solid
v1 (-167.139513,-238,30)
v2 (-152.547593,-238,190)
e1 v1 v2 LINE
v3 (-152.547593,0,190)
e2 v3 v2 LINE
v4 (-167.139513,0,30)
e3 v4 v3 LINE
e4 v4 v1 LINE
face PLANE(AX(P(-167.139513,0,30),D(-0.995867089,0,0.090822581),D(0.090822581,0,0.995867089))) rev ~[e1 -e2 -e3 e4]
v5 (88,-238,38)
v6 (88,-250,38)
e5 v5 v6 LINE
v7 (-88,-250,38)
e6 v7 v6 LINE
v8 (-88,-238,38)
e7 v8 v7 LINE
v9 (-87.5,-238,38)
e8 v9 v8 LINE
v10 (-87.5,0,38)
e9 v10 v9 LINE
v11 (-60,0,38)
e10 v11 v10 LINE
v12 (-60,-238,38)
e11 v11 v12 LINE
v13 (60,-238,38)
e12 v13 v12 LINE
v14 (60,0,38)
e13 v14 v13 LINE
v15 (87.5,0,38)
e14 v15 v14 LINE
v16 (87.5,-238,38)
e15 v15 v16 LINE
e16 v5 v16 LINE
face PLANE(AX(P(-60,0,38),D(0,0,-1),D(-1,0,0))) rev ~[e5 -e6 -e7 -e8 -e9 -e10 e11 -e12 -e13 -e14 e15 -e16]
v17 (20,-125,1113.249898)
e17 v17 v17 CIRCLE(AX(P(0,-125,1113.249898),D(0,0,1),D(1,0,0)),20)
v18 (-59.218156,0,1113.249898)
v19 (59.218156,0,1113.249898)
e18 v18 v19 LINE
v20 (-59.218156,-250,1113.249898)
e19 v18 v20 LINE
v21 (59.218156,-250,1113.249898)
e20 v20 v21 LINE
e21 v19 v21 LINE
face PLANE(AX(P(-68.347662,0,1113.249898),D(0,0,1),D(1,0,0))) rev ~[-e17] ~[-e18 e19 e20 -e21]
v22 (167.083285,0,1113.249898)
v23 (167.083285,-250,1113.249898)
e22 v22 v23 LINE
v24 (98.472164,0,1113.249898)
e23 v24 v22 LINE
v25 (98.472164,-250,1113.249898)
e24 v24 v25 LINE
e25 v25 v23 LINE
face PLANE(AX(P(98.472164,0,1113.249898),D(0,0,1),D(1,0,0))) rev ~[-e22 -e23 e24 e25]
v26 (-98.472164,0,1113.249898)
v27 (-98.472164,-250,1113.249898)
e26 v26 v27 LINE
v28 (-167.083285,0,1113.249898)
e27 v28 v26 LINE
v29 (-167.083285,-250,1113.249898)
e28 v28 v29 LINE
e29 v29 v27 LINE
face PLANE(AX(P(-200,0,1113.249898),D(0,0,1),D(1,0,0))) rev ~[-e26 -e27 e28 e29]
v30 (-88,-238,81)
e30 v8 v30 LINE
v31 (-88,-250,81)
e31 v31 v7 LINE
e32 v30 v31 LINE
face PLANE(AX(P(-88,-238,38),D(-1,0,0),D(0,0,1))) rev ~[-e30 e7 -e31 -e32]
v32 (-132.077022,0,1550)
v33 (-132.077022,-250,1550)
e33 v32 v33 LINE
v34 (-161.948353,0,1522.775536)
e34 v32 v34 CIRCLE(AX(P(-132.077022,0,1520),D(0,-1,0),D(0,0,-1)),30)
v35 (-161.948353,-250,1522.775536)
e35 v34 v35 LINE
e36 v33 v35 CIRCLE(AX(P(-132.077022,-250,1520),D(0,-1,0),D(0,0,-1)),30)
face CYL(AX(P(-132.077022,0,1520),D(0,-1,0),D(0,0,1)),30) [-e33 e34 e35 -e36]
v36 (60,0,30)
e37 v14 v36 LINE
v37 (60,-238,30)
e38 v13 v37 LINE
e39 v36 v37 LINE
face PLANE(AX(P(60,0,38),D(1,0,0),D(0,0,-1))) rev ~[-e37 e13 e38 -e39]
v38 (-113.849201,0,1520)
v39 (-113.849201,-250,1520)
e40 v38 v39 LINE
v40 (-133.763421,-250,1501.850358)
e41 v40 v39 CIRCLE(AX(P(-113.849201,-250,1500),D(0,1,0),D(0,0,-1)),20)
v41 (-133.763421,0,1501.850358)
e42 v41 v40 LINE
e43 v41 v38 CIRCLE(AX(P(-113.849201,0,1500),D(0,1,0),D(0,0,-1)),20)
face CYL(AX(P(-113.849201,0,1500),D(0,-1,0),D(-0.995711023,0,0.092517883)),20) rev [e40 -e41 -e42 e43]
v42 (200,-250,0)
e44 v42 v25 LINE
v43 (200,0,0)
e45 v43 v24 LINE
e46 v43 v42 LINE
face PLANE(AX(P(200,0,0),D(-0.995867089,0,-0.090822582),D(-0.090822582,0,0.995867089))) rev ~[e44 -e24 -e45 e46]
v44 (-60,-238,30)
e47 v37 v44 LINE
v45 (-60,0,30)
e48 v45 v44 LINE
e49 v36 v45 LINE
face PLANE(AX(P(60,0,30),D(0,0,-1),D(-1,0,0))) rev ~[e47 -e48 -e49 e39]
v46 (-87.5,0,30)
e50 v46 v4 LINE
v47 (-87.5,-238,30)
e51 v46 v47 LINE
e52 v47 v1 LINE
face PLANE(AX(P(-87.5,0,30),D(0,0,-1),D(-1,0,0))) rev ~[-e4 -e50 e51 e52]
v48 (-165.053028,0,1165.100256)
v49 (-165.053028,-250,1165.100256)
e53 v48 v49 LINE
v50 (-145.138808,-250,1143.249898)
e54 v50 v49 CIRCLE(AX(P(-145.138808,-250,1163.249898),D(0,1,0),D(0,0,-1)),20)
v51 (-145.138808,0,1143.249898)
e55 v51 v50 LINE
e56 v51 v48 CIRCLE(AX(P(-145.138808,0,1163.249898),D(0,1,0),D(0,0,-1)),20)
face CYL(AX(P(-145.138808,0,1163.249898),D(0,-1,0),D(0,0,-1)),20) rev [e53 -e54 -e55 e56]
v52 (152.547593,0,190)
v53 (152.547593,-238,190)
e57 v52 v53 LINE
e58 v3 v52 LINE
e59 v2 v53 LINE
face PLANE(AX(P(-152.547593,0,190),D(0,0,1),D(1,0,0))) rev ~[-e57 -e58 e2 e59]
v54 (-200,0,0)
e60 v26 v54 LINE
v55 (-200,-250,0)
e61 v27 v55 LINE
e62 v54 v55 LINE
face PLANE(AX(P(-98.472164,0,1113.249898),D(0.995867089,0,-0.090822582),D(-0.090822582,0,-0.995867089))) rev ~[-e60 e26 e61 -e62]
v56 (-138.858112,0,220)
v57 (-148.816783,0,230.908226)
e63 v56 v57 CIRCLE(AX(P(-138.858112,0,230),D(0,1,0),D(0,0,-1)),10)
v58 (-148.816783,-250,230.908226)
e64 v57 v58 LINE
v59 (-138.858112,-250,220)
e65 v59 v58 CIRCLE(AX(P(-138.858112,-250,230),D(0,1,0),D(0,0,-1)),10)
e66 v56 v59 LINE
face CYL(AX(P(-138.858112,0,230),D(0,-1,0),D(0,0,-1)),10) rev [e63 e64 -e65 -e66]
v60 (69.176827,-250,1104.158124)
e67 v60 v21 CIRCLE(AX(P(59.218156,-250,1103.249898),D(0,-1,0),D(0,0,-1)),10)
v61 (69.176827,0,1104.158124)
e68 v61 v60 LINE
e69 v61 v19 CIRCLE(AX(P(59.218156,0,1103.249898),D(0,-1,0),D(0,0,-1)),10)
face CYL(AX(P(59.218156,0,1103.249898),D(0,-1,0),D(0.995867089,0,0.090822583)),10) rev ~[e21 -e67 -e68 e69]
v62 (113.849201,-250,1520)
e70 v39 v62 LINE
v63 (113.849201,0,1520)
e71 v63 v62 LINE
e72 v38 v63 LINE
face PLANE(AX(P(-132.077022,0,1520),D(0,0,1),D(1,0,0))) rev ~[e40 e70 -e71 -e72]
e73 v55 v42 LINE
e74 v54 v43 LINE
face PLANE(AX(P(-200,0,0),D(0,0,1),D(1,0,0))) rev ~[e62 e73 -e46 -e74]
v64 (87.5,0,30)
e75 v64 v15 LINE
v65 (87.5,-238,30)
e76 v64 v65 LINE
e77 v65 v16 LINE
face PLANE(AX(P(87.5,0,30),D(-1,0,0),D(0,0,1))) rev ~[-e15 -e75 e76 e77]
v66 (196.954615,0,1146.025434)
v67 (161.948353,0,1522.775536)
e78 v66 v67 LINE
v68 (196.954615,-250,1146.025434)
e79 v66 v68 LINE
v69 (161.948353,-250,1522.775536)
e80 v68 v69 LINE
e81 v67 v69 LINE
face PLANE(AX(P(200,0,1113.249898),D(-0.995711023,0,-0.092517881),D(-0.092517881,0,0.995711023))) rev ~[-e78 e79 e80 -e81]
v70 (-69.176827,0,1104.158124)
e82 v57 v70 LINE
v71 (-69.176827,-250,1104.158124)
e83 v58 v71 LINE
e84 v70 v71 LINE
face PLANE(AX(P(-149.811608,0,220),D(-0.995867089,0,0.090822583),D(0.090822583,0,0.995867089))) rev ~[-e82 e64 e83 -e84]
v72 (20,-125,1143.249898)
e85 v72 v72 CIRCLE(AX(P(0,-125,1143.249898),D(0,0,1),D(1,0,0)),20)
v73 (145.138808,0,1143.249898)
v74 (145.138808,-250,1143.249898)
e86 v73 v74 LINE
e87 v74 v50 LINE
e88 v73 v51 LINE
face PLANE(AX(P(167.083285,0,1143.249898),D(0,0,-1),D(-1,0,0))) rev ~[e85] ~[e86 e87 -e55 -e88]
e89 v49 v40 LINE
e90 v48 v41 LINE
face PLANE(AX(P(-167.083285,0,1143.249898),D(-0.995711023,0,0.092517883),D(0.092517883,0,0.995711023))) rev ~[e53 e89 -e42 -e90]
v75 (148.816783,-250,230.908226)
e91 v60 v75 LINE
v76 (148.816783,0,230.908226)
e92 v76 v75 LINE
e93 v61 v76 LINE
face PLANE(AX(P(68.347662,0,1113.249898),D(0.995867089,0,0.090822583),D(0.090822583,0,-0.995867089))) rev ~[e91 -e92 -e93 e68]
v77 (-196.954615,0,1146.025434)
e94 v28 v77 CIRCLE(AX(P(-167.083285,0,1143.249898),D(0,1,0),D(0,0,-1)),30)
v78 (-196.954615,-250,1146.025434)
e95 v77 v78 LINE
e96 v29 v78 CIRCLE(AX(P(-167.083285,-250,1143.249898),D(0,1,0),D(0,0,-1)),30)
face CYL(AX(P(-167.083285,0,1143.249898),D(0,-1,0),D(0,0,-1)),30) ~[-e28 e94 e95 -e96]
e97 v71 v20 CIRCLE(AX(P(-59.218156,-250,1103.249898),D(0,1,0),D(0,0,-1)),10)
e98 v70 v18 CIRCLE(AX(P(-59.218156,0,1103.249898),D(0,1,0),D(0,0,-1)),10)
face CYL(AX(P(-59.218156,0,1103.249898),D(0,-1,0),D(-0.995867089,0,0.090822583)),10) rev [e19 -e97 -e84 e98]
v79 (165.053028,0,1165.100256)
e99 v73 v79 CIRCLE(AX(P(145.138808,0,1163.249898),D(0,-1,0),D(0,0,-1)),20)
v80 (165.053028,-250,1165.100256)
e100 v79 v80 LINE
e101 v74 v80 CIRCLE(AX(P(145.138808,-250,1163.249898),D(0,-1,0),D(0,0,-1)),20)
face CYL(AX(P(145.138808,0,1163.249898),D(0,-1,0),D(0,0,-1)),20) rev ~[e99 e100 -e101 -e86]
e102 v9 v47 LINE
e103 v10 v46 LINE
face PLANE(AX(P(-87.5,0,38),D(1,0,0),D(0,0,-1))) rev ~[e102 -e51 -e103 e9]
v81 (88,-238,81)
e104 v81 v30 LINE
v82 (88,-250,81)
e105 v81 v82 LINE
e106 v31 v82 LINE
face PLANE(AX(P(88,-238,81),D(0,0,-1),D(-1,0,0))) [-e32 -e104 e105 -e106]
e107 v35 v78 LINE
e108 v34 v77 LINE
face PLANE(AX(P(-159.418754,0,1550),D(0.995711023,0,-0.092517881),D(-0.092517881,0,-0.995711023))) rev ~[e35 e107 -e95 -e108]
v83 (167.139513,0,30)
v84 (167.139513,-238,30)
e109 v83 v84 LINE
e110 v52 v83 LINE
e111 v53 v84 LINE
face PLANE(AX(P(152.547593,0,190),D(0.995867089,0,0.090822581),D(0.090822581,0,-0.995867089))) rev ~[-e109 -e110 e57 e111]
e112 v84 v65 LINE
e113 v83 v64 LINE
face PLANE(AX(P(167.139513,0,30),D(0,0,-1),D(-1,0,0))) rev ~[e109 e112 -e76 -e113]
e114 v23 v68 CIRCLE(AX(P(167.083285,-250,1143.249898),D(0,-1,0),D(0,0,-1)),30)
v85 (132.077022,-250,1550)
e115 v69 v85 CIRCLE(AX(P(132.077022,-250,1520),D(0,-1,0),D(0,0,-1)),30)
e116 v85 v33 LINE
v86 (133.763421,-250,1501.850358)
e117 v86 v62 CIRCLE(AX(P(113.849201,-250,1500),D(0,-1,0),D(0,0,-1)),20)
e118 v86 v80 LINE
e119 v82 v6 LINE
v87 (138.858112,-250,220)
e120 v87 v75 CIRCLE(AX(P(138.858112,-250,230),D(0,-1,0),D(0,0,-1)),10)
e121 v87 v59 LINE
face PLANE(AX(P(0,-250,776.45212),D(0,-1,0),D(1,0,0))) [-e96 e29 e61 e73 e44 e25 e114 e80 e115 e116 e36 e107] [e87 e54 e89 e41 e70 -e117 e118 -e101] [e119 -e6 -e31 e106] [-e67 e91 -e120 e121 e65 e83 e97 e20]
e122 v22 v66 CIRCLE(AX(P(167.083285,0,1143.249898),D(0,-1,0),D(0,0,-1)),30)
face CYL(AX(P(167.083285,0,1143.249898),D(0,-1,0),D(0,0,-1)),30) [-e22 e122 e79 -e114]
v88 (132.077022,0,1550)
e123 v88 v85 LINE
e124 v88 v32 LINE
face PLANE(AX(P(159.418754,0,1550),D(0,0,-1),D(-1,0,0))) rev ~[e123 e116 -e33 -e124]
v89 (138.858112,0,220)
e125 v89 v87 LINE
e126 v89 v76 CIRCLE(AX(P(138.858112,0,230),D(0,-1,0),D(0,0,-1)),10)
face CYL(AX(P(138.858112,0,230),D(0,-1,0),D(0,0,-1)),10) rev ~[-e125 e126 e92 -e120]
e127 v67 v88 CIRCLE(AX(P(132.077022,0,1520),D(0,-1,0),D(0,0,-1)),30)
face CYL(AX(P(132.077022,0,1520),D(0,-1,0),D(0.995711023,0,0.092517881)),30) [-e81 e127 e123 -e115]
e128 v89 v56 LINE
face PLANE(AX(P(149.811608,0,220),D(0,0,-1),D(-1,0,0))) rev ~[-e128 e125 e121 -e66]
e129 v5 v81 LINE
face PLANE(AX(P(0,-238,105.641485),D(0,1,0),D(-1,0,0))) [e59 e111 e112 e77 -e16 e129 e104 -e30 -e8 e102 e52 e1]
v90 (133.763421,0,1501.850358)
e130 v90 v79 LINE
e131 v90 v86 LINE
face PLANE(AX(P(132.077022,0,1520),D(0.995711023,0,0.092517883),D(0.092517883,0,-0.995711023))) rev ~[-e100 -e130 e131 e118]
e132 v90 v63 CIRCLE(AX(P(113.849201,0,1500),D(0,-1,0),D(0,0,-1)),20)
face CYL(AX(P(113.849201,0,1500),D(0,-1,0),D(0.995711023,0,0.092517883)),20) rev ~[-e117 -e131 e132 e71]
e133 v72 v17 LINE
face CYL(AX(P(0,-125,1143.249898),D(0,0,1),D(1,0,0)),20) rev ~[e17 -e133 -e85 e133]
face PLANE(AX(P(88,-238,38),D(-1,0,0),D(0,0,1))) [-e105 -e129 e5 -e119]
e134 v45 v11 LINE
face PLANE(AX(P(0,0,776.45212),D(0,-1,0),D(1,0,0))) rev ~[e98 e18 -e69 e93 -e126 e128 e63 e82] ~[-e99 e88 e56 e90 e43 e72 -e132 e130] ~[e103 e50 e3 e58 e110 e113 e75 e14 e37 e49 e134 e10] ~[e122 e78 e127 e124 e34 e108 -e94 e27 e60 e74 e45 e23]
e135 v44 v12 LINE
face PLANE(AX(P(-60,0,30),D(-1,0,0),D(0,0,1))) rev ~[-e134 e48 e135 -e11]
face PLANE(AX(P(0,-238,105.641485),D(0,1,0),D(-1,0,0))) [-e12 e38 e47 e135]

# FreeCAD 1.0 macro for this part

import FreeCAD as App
import Part
import Sketcher

V = App.Vector
Q = App.Units.Quantity


def edges_at(feature, points):
    """Names of the edges that pass closest to the given points."""
    edges = feature.Shape.Edges
    near = lambda p: min(range(len(edges)), key=lambda i: edges[i].distToShape(Part.Vertex(*p))[0])
    return sorted({f"Edge{near(p) + 1}" for p in points})


def add_polygon(sketch, points):
    """Adds a closed chain of lines whose ends are joined by coincident constraints."""
    first, n = sketch.GeometryCount, len(points)
    for a, b in zip(points, points[1:] + points[:1]):
        sketch.addGeometry(Part.LineSegment(App.Vector(*a, 0), App.Vector(*b, 0)), False)
    for i in range(n):
        sketch.addConstraint(Sketcher.Constraint("Coincident", first + i, 2, first + (i + 1) % n, 1))

doc = App.newDocument("Part")
body = doc.addObject("PartDesign::Body", "Body")

sketch1 = doc.addObject("Sketcher::SketchObject", "Sketch")
body.addObject(sketch1)
sketch1.AttachmentSupport = (doc.XZ_Plane, [""])
sketch1.MapMode = "FlatFace"
add_polygon(sketch1, [(200, 0), (98.472164, 1113.249898), (200, 1113.249898), (159.418754, 1550), (-159.418754, 1550), (-200, 1113.249898), (-98.472164, 1113.249898), (-200, 0)])
add_polygon(sketch1, [(149.811608, 220), (-149.811608, 220), (-68.347662, 1113.249898), (68.347662, 1113.249898)])
add_polygon(sketch1, [(167.083285, 1143.249898), (-167.083285, 1143.249898), (-132.077022, 1520), (132.077022, 1520)])
sketch1.addConstraint([
    Sketcher.Constraint("Horizontal", 1),
    Sketcher.Constraint("Horizontal", 3),
    Sketcher.Constraint("Horizontal", 5),
    Sketcher.Constraint("Horizontal", 7),
    Sketcher.Constraint("Horizontal", 8),
    Sketcher.Constraint("Horizontal", 10),
    Sketcher.Constraint("Horizontal", 12),
    Sketcher.Constraint("Horizontal", 14),
    Sketcher.Constraint("Symmetric", 6, 2, 7, 2, -1, 1),
    Sketcher.Constraint("Symmetric", 1, 2, 4, 2, -2),
    Sketcher.Constraint("Parallel", 6, 9),
    Sketcher.Constraint("Parallel", 0, 11),
    Sketcher.Constraint("Parallel", 4, 13),
    Sketcher.Constraint("Parallel", 2, 15),
    Sketcher.Constraint("Horizontal", 5, 2, 9, 2),
    Sketcher.Constraint("Vertical", 4, 2, 6, 2),
    Sketcher.Constraint("Equal", 1, 5),
    Sketcher.Constraint("Equal", 2, 4),
    Sketcher.Constraint("DistanceX", 7, 1, 7, 2, Q("400 mm")),
    Sketcher.Constraint("DistanceY", -1, 1, 2, 2, Q("1550 mm")),
    Sketcher.Constraint("DistanceY", -1, 1, 8, 2, Q("220 mm")),
    Sketcher.Constraint("DistanceY", -1, 1, 13, 2, Q("1520 mm")),
    Sketcher.Constraint("DistanceY", 4, 2, 12, 2, Q("30 mm")),
    Sketcher.Constraint("DistanceX", 3, 2, 3, 1, Q("318.837508 mm")),
    Sketcher.Constraint("DistanceX", 12, 2, 12, 1, Q("334.16657 mm")),
    Sketcher.Constraint("DistanceY", -1, 1, 0, 2, Q("1113.249898 mm")),
    Sketcher.Constraint("Distance", 9, Q("896.956941 mm")),
    Sketcher.Constraint("DistanceX", 8, 2, 8, 1, Q("299.623216 mm")),
    Sketcher.Constraint("DistanceX", 8, 2, -1, 1, Q("149.811608 mm")),
    Sketcher.Constraint("DistanceX", 13, 2, -1, 1, Q("132.077022 mm")),
])
pad1 = doc.addObject("PartDesign::Pad", "Pad")
body.addObject(pad1)
pad1.Profile = sketch1
pad1.Length = 250

sketch2 = doc.addObject("Sketcher::SketchObject", "Sketch001")
body.addObject(sketch2)
sketch2.AttachmentSupport = (doc.XZ_Plane, [""])
sketch2.MapMode = "FlatFace"
add_polygon(sketch2, [(-152.547593, 190), (152.547593, 190), (167.139513, 30), (87.5, 30), (87.5, 38), (60, 38), (60, 30), (-60, 30), (-60, 38), (-87.5, 38), (-87.5, 30), (-167.139513, 30)])
sketch2.addConstraint([
    Sketcher.Constraint("Horizontal", 0),
    Sketcher.Constraint("Horizontal", 2),
    Sketcher.Constraint("Vertical", 3),
    Sketcher.Constraint("Horizontal", 4),
    Sketcher.Constraint("Vertical", 5),
    Sketcher.Constraint("Horizontal", 6),
    Sketcher.Constraint("Vertical", 7),
    Sketcher.Constraint("Horizontal", 8),
    Sketcher.Constraint("Vertical", 9),
    Sketcher.Constraint("Horizontal", 10),
    Sketcher.Constraint("Symmetric", 4, 2, 7, 2, -2),
    Sketcher.Constraint("Symmetric", 2, 2, 9, 2, -2),
    Sketcher.Constraint("Horizontal", 2, 2, 5, 2),
    Sketcher.Constraint("Equal", 2, 10),
    Sketcher.Constraint("Equal", 1, 11),
    Sketcher.Constraint("DistanceX", 6, 2, 6, 1, Q("120 mm")),
    Sketcher.Constraint("DistanceY", 3, 1, 3, 2, Q("8 mm")),
    Sketcher.Constraint("DistanceX", 4, 2, 4, 1, Q("27.5 mm")),
    Sketcher.Constraint("DistanceY", -1, 1, 0, 2, Q("190 mm")),
    Sketcher.Constraint("DistanceY", -1, 1, 1, 2, Q("30 mm")),
    Sketcher.Constraint("Distance", 1, Q("160.66401 mm")),
    Sketcher.Constraint("DistanceX", 0, 1, 0, 2, Q("305.095186 mm")),
])
pocket1 = doc.addObject("PartDesign::Pocket", "Pocket")
body.addObject(pocket1)
pocket1.Profile = sketch2
pocket1.Length = 238
pocket1.Reversed = True

sketch3 = doc.addObject("Sketcher::SketchObject", "Sketch002")
body.addObject(sketch3)
sketch3.AttachmentSupport = (doc.XZ_Plane, [""])
sketch3.MapMode = "FlatFace"
sketch3.AttachmentOffset = App.Placement(V(0, 0, 238), App.Rotation())
add_polygon(sketch3, [(88, 81), (88, 38), (-88, 38), (-88, 81)])
sketch3.addConstraint([
    Sketcher.Constraint("Vertical", 0),
    Sketcher.Constraint("Horizontal", 1),
    Sketcher.Constraint("Vertical", 2),
    Sketcher.Constraint("Horizontal", 3),
    Sketcher.Constraint("DistanceX", 1, 2, 1, 1, Q("176 mm")),
    Sketcher.Constraint("DistanceY", 0, 2, 0, 1, Q("43 mm")),
    Sketcher.Constraint("DistanceX", -1, 1, 0, 2, Q("88 mm")),
    Sketcher.Constraint("DistanceY", -1, 1, 0, 2, Q("38 mm")),
])
pocket2 = doc.addObject("PartDesign::Pocket", "Pocket001")
body.addObject(pocket2)
pocket2.Profile = sketch3
pocket2.Type = "ThroughAll"
pocket2.Reversed = True
doc.recompute()

fillet = doc.addObject("PartDesign::Fillet", "Fillet")
body.addObject(fillet)
fillet.Base = (pocket2, edges_at(pocket2, [
    (-149.812, -125, 220),
    (149.812, -125, 220),
    (-68.348, -125, 1113.25),
    (68.348, -125, 1113.25),
]))
fillet.Radius = 10
doc.recompute()

fillet2 = doc.addObject("PartDesign::Fillet", "Fillet001")
body.addObject(fillet2)
fillet2.Base = (fillet, edges_at(fillet, [
    (200, -125, 1113.25),
    (-200, -125, 1113.25),
    (-159.419, -125, 1550),
    (159.419, -125, 1550),
]))
fillet2.Radius = 30
doc.recompute()

fillet3 = doc.addObject("PartDesign::Fillet", "Fillet002")
body.addObject(fillet3)
fillet3.Base = (fillet2, edges_at(fillet2, [
    (-167.083, -125, 1143.25),
    (-132.077, -125, 1520),
    (132.077, -125, 1520),
    (167.083, -125, 1143.25),
]))
fillet3.Radius = 20

sketch4 = doc.addObject("Sketcher::SketchObject", "Sketch003")
body.addObject(sketch4)
sketch4.AttachmentSupport = (doc.XY_Plane, [""])
sketch4.MapMode = "FlatFace"
sketch4.AttachmentOffset = App.Placement(V(0, 0, 1143.249898), App.Rotation())
sketch4.addGeometry(Part.Circle(V(0, -125, 0), V(0, 0, 1), 20), False)
sketch4.addConstraint([
    Sketcher.Constraint("PointOnObject", 0, 3, -2),
    Sketcher.Constraint("Diameter", 0, Q("40 mm")),
    Sketcher.Constraint("DistanceY", 0, 3, -1, 1, Q("125 mm")),
])
pocket3 = doc.addObject("PartDesign::Pocket", "Pocket002")
body.addObject(pocket3)
pocket3.Profile = sketch4
pocket3.Length = 30

doc.recompute()
